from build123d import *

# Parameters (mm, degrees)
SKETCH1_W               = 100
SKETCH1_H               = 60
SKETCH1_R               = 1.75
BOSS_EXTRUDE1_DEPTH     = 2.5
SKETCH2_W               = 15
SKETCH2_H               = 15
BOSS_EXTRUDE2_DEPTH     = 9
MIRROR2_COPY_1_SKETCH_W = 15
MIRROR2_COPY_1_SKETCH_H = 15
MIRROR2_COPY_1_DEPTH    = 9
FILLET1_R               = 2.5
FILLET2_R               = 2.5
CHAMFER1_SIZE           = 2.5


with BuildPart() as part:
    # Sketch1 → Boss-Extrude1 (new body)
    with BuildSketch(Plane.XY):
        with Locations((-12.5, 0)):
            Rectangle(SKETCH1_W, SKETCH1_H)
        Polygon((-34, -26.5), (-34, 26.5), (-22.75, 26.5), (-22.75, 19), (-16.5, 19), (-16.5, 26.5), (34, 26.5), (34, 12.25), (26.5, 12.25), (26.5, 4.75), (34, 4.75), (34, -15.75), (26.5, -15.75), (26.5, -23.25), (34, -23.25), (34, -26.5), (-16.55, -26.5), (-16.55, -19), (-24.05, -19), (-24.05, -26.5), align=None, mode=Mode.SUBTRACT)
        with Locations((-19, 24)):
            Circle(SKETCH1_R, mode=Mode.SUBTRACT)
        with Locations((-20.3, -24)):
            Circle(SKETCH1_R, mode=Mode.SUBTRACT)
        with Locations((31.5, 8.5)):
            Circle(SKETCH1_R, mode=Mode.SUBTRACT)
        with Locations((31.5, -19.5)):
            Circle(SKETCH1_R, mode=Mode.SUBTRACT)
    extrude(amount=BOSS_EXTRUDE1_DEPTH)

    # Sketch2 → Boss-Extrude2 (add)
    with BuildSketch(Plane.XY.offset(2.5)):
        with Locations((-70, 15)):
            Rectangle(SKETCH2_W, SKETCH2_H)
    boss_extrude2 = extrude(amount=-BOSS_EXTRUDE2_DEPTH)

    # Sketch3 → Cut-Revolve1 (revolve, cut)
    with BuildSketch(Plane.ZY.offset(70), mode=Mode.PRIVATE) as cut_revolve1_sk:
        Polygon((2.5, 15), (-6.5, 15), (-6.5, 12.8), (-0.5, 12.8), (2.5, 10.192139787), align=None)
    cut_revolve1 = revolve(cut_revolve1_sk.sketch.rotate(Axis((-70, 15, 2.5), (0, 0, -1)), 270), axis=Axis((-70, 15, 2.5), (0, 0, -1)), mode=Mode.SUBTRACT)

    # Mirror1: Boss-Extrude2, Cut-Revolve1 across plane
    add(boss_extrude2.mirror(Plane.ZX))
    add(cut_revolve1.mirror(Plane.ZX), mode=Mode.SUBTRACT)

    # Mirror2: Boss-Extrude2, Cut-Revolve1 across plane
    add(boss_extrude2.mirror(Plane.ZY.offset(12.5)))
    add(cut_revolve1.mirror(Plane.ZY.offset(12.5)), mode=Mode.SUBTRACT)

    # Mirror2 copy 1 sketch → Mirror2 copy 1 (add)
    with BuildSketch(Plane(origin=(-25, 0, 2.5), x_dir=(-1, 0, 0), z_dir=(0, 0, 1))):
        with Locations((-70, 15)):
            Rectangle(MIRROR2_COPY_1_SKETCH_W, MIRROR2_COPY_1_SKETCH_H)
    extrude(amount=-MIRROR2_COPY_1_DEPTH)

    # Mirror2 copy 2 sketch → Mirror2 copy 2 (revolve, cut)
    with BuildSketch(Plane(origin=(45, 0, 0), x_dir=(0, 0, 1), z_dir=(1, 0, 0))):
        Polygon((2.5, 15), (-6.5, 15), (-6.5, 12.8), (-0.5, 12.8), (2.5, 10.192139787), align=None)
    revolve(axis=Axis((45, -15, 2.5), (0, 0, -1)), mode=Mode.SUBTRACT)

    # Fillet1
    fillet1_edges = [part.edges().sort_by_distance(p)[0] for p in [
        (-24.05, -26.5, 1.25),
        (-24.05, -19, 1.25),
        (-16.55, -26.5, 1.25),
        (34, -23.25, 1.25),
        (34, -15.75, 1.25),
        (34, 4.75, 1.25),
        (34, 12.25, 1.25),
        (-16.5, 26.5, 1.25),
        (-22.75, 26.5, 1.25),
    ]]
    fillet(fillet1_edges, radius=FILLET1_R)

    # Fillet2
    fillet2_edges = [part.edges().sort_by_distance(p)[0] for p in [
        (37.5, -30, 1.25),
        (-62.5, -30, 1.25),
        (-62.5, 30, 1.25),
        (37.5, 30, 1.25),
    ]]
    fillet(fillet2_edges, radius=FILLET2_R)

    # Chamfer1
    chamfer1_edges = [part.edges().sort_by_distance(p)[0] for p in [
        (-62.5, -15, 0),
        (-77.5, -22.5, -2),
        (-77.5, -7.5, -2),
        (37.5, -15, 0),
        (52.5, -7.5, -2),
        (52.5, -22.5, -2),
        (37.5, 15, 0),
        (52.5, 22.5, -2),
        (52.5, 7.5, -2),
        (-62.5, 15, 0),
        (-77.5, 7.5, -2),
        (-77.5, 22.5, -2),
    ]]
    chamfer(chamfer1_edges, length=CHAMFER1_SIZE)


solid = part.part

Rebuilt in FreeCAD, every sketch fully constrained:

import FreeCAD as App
import Part
import Sketcher

V = App.Vector
Q = App.Units.Quantity


def edges_at(feature, points):
    """Names of the edges that pass closest to the given points."""
    edges = feature.Shape.Edges
    near = lambda p: min(range(len(edges)), key=lambda i: edges[i].distToShape(Part.Vertex(*p))[0])
    return sorted({f"Edge{near(p) + 1}" for p in points})


def add_polygon(sketch, points):
    """Adds a closed chain of lines whose ends are joined by coincident constraints."""
    first, n = sketch.GeometryCount, len(points)
    for a, b in zip(points, points[1:] + points[:1]):
        sketch.addGeometry(Part.LineSegment(App.Vector(*a, 0), App.Vector(*b, 0)), False)
    for i in range(n):
        sketch.addConstraint(Sketcher.Constraint("Coincident", first + i, 2, first + (i + 1) % n, 1))

doc = App.newDocument("Part")
body = doc.addObject("PartDesign::Body", "Body")

# Sketch on XY plane
sketch1 = body.newObject("Sketcher::SketchObject", "Sketch")
sketch1.AttachmentSupport = (doc.getObject("XY_Plane"), [""])
sketch1.MapMode = "FlatFace"
add_polygon(sketch1, [(-62.5, 30), (-62.5, -30), (37.5, -30), (37.5, 30)])  # lines 0-3
sketch1.addGeometry(Part.Circle(V(-20.3, -24, 0), V(0, 0, 1), 1.8), False)  # 4
sketch1.addGeometry(Part.Circle(V(31.5, -19.5, 0), V(0, 0, 1), 1.8), False)  # 5
sketch1.addGeometry(Part.Circle(V(-19, 24, 0), V(0, 0, 1), 1.8), False)  # 6
add_polygon(sketch1, [(-24.1, -26.5), (-34, -26.5), (-34, 26.5), (-22.8, 26.5), (-22.8, 19), (-16.5, 19), (-16.5, 26.5), (34, 26.5), (34, 12.2), (26.5, 12.2), (26.5, 4.8), (34, 4.8), (34, -15.8), (26.5, -15.8), (26.5, -23.2), (34, -23.2), (34, -26.5), (-16.6, -26.5), (-16.6, -19), (-24.1, -19)])  # lines 7-26
sketch1.addGeometry(Part.Circle(V(31.5, 8.5, 0), V(0, 0, 1), 1.8), False)  # 27
sketch1.addConstraint([
    Sketcher.Constraint("Vertical", 0),
    Sketcher.Constraint("Horizontal", 1),
    Sketcher.Constraint("Vertical", 2),
    Sketcher.Constraint("Horizontal", 3),
    Sketcher.Constraint("Horizontal", 7),
    Sketcher.Constraint("Vertical", 8),
    Sketcher.Constraint("Horizontal", 9),
    Sketcher.Constraint("Vertical", 10),
    Sketcher.Constraint("Horizontal", 11),
    Sketcher.Constraint("Vertical", 12),
    Sketcher.Constraint("Horizontal", 13),
    Sketcher.Constraint("Vertical", 14),
    Sketcher.Constraint("Horizontal", 15),
    Sketcher.Constraint("Vertical", 16),
    Sketcher.Constraint("Horizontal", 17),
    Sketcher.Constraint("Vertical", 18),
    Sketcher.Constraint("Horizontal", 19),
    Sketcher.Constraint("Vertical", 20),
    Sketcher.Constraint("Horizontal", 21),
    Sketcher.Constraint("Vertical", 22),
    Sketcher.Constraint("Horizontal", 23),
    Sketcher.Constraint("Vertical", 24),
    Sketcher.Constraint("Horizontal", 25),
    Sketcher.Constraint("Vertical", 26),
    Sketcher.Constraint("Equal", 4, 5),
    Sketcher.Constraint("Equal", 5, 6),
    Sketcher.Constraint("Equal", 6, 27),
    Sketcher.Constraint("Symmetric", 7, 2, 13, 2, -1, 1),
    Sketcher.Constraint("Symmetric", 8, 2, 22, 2, -1, 1),
    Sketcher.Constraint("Horizontal", 9, 2, 12, 2),
    Sketcher.Constraint("Vertical", 5, 3, 27, 3),
    Sketcher.Constraint("Vertical", 14, 2, 17, 2),
    Sketcher.Constraint("Vertical", 16, 2, 19, 2),
    Sketcher.Constraint("Equal", 21, 25),
    Sketcher.Constraint("Equal", 25, 10),
    Sketcher.Constraint("Equal", 12, 16),
    Sketcher.Constraint("Equal", 16, 20),
    Sketcher.Constraint("Equal", 20, 24),
    Sketcher.Constraint("Diameter", 4, 3.5),
    Sketcher.Constraint("DistanceX", 1, 1, 1, 2, 100.0),
    Sketcher.Constraint("DistanceY", 0, 2, 0, 1, 60.0),
    Sketcher.Constraint("DistanceY", 8, 1, 8, 2, 53.0),
    Sketcher.Constraint("DistanceX", 13, 1, 13, 2, 50.5),
    Sketcher.Constraint("DistanceX", 15, 2, 15, 1, 7.5),
    Sketcher.Constraint("DistanceY", 18, 2, 18, 1, 20.5),
    Sketcher.Constraint("DistanceY", 4, 3, -1, 1, 24.0),
    Sketcher.Constraint("DistanceX", 6, 3, -1, 1, 19.0),
    Sketcher.Constraint("DistanceY", -1, 1, 6, 3, 24.0),
    Sketcher.Constraint("DistanceY", 0, 2, -1, 1, 30.0),
    Sketcher.Constraint("DistanceX", 7, 2, -1, 1, 34.0),
    Sketcher.Constraint("DistanceY", 5, 3, 27, 3, 28.0),
    Sketcher.Constraint("DistanceX", 0, 2, 5, 3, 94.0),
    Sketcher.Constraint("DistanceY", 7, 2, 5, 3, 7.0),
    Sketcher.Constraint("DistanceX", 15, 2, 27, 3, 5.0),
    Sketcher.Constraint("DistanceX", 7, 2, 7, 1, 9.95),
    Sketcher.Constraint("DistanceX", 9, 1, 9, 2, 11.25),
    Sketcher.Constraint("DistanceY", 14, 2, 14, 1, 14.25),
    Sketcher.Constraint("DistanceX", 4, 3, -1, 1, 20.3),
])
pad1 = body.newObject("PartDesign::Pad", "Pad")
pad1.Profile = sketch1
pad1.Length = 2.5

# Sketch on XY plane
sketch2 = body.newObject("Sketcher::SketchObject", "Sketch001")
sketch2.AttachmentSupport = (doc.getObject("XY_Plane"), [""])
sketch2.MapMode = "FlatFace"
sketch2.AttachmentOffset = App.Placement(V(0, 0, 2.5), App.Rotation())
add_polygon(sketch2, [(-78, 22), (-78, 8), (-62, 8), (-62, 22)])  # lines 0-3
sketch2.addConstraint([
    Sketcher.Constraint("Vertical", 0),
    Sketcher.Constraint("Horizontal", 1),
    Sketcher.Constraint("Vertical", 2),
    Sketcher.Constraint("Horizontal", 3),
    Sketcher.Constraint("Equal", 3, 0),
    Sketcher.Constraint("DistanceX", 1, 1, 1, 2, 15.0),
    Sketcher.Constraint("DistanceX", 0, 2, -1, 1, 77.5),
    Sketcher.Constraint("DistanceY", -1, 1, 0, 2, 7.5),
])
pad2 = body.newObject("PartDesign::Pad", "Pad001")
pad2.Profile = sketch2
pad2.Length = 9
pad2.Reversed = True

# Sketch on YZ plane
sketch3 = body.newObject("Sketcher::SketchObject", "Sketch002")
sketch3.AttachmentSupport = (doc.getObject("YZ_Plane"), [""])
sketch3.MapMode = "FlatFace"
sketch3.AttachmentOffset = App.Placement(V(0, 0, -70), App.Rotation())
add_polygon(sketch3, [(15, 2.5), (15, -6.5), (12.8, -6.5), (12.8, -0.5), (10.2, 2.5)])  # lines 0-4
sketch3.addGeometry(Part.LineSegment(V(15, 2.5, 0), V(15, -6.5, 0)), True)  # axis
sketch3.addConstraint([
    Sketcher.Constraint("Vertical", 0),
    Sketcher.Constraint("Horizontal", 1),
    Sketcher.Constraint("Vertical", 2),
    Sketcher.Constraint("Horizontal", 4),
    Sketcher.Constraint("Vertical", 5),
    Sketcher.Constraint("Coincident", 5, 1, 4, 2),
    Sketcher.Constraint("Horizontal", 1, 2, 5, 2),
    Sketcher.Constraint("DistanceY", 0, 2, 0, 1, 9.0),
    Sketcher.Constraint("DistanceY", 2, 1, 2, 2, 6.0),
    Sketcher.Constraint("Angle", 3, Q("131 deg")),
    Sketcher.Constraint("DistanceX", 1, 2, 1, 1, 2.2),
    Sketcher.Constraint("DistanceX", -1, 1, 0, 2, 15.0),
    Sketcher.Constraint("DistanceY", 0, 2, -1, 1, 6.5),
])
groove = body.newObject("PartDesign::Groove", "Groove")
groove.Profile = sketch3
groove.ReferenceAxis = (sketch3, ["Axis0"])
groove.Angle = 360
doc.recompute()

mirrored = body.newObject("PartDesign::Mirrored", "Mirrored")
mirrored.Originals = [pad2, groove]
mirrored.MirrorPlane = (doc.getObject("XZ_Plane"), [""])
body.Tip = mirrored
doc.recompute()

datumplane = body.newObject("PartDesign::Plane", "DatumPlane")
datumplane.AttachmentSupport = (doc.getObject("YZ_Plane"), [""])
datumplane.MapMode = "FlatFace"
datumplane.AttachmentOffset = App.Placement(V(0, 0, -12.5), App.Rotation())
mirrored2 = body.newObject("PartDesign::Mirrored", "Mirrored001")
mirrored2.Originals = [pad2, groove]
mirrored2.MirrorPlane = (datumplane, [""])
body.Tip = mirrored2

# Sketch on XY plane
sketch4 = body.newObject("Sketcher::SketchObject", "Sketch003")
sketch4.AttachmentSupport = (doc.getObject("XY_Plane"), [""])
sketch4.MapMode = "FlatFace"
sketch4.AttachmentOffset = App.Placement(V(0, 0, 2.5), App.Rotation())
add_polygon(sketch4, [(52, -22), (52, -8), (38, -8), (38, -22)])  # lines 0-3
sketch4.addConstraint([
    Sketcher.Constraint("Vertical", 0),
    Sketcher.Constraint("Horizontal", 1),
    Sketcher.Constraint("Vertical", 2),
    Sketcher.Constraint("Horizontal", 3),
    Sketcher.Constraint("Equal", 3, 0),
    Sketcher.Constraint("DistanceX", 1, 2, 1, 1, 15.0),
    Sketcher.Constraint("DistanceX", -1, 1, 0, 2, 52.5),
    Sketcher.Constraint("DistanceY", 0, 2, -1, 1, 7.5),
])
pad3 = body.newObject("PartDesign::Pad", "Pad002")
pad3.Profile = sketch4
pad3.Length = 9
pad3.Reversed = True

# Sketch on YZ plane
sketch5 = body.newObject("Sketcher::SketchObject", "Sketch004")
sketch5.AttachmentSupport = (doc.getObject("YZ_Plane"), [""])
sketch5.MapMode = "FlatFace"
sketch5.AttachmentOffset = App.Placement(V(0, 0, 45), App.Rotation())
add_polygon(sketch5, [(-15, 2.5), (-15, -6.5), (-12.8, -6.5), (-12.8, -0.5), (-10.2, 2.5)])  # lines 0-4
sketch5.addGeometry(Part.LineSegment(V(-15, 2.5, 0), V(-15, -6.5, 0)), True)  # axis
sketch5.addConstraint([
    Sketcher.Constraint("Vertical", 0),
    Sketcher.Constraint("Horizontal", 1),
    Sketcher.Constraint("Vertical", 2),
    Sketcher.Constraint("Horizontal", 4),
    Sketcher.Constraint("Vertical", 5),
    Sketcher.Constraint("Coincident", 5, 1, 4, 2),
    Sketcher.Constraint("Horizontal", 1, 2, 5, 2),
    Sketcher.Constraint("DistanceY", 0, 2, 0, 1, 9.0),
    Sketcher.Constraint("DistanceY", 2, 1, 2, 2, 6.0),
    Sketcher.Constraint("Angle", 3, Q("49 deg")),
    Sketcher.Constraint("DistanceX", 1, 1, 1, 2, 2.2),
    Sketcher.Constraint("DistanceX", 0, 2, -1, 1, 15.0),
    Sketcher.Constraint("DistanceY", 0, 2, -1, 1, 6.5),
])
groove2 = body.newObject("PartDesign::Groove", "Groove001")
groove2.Profile = sketch5
groove2.ReferenceAxis = (sketch5, ["Axis0"])
groove2.Angle = 360
doc.recompute()

fillet = body.newObject("PartDesign::Fillet", "Fillet")
fillet.Base = (groove2, edges_at(groove2, [
    (-24.05, -26.5, 1.25),
    (-24.05, -19, 1.25),
    (-16.55, -26.5, 1.25),
    (34, -23.25, 1.25),
    (34, -15.75, 1.25),
    (34, 4.75, 1.25),
    (34, 12.25, 1.25),
    (-16.5, 26.5, 1.25),
    (-22.75, 26.5, 1.25),
]))
fillet.Radius = 2.5
doc.recompute()

fillet2 = body.newObject("PartDesign::Fillet", "Fillet001")
fillet2.Base = (fillet, edges_at(fillet, [
    (37.5, -30, 1.25),
    (-62.5, -30, 1.25),
    (-62.5, 30, 1.25),
    (37.5, 30, 1.25),
]))
fillet2.Radius = 2.5
doc.recompute()

chamfer = body.newObject("PartDesign::Chamfer", "Chamfer")
chamfer.Base = (fillet2, edges_at(fillet2, [
    (-62.5, -15, 0),
    (-77.5, -22.5, -2),
    (-77.5, -7.5, -2),
    (37.5, -15, 0),
    (52.5, -7.5, -2),
    (52.5, -22.5, -2),
    (37.5, 15, 0),
    (52.5, 22.5, -2),
    (52.5, 7.5, -2),
    (-62.5, 15, 0),
    (-77.5, 7.5, -2),
    (-77.5, 22.5, -2),
]))
chamfer.Size = 2.5

doc.recompute()
